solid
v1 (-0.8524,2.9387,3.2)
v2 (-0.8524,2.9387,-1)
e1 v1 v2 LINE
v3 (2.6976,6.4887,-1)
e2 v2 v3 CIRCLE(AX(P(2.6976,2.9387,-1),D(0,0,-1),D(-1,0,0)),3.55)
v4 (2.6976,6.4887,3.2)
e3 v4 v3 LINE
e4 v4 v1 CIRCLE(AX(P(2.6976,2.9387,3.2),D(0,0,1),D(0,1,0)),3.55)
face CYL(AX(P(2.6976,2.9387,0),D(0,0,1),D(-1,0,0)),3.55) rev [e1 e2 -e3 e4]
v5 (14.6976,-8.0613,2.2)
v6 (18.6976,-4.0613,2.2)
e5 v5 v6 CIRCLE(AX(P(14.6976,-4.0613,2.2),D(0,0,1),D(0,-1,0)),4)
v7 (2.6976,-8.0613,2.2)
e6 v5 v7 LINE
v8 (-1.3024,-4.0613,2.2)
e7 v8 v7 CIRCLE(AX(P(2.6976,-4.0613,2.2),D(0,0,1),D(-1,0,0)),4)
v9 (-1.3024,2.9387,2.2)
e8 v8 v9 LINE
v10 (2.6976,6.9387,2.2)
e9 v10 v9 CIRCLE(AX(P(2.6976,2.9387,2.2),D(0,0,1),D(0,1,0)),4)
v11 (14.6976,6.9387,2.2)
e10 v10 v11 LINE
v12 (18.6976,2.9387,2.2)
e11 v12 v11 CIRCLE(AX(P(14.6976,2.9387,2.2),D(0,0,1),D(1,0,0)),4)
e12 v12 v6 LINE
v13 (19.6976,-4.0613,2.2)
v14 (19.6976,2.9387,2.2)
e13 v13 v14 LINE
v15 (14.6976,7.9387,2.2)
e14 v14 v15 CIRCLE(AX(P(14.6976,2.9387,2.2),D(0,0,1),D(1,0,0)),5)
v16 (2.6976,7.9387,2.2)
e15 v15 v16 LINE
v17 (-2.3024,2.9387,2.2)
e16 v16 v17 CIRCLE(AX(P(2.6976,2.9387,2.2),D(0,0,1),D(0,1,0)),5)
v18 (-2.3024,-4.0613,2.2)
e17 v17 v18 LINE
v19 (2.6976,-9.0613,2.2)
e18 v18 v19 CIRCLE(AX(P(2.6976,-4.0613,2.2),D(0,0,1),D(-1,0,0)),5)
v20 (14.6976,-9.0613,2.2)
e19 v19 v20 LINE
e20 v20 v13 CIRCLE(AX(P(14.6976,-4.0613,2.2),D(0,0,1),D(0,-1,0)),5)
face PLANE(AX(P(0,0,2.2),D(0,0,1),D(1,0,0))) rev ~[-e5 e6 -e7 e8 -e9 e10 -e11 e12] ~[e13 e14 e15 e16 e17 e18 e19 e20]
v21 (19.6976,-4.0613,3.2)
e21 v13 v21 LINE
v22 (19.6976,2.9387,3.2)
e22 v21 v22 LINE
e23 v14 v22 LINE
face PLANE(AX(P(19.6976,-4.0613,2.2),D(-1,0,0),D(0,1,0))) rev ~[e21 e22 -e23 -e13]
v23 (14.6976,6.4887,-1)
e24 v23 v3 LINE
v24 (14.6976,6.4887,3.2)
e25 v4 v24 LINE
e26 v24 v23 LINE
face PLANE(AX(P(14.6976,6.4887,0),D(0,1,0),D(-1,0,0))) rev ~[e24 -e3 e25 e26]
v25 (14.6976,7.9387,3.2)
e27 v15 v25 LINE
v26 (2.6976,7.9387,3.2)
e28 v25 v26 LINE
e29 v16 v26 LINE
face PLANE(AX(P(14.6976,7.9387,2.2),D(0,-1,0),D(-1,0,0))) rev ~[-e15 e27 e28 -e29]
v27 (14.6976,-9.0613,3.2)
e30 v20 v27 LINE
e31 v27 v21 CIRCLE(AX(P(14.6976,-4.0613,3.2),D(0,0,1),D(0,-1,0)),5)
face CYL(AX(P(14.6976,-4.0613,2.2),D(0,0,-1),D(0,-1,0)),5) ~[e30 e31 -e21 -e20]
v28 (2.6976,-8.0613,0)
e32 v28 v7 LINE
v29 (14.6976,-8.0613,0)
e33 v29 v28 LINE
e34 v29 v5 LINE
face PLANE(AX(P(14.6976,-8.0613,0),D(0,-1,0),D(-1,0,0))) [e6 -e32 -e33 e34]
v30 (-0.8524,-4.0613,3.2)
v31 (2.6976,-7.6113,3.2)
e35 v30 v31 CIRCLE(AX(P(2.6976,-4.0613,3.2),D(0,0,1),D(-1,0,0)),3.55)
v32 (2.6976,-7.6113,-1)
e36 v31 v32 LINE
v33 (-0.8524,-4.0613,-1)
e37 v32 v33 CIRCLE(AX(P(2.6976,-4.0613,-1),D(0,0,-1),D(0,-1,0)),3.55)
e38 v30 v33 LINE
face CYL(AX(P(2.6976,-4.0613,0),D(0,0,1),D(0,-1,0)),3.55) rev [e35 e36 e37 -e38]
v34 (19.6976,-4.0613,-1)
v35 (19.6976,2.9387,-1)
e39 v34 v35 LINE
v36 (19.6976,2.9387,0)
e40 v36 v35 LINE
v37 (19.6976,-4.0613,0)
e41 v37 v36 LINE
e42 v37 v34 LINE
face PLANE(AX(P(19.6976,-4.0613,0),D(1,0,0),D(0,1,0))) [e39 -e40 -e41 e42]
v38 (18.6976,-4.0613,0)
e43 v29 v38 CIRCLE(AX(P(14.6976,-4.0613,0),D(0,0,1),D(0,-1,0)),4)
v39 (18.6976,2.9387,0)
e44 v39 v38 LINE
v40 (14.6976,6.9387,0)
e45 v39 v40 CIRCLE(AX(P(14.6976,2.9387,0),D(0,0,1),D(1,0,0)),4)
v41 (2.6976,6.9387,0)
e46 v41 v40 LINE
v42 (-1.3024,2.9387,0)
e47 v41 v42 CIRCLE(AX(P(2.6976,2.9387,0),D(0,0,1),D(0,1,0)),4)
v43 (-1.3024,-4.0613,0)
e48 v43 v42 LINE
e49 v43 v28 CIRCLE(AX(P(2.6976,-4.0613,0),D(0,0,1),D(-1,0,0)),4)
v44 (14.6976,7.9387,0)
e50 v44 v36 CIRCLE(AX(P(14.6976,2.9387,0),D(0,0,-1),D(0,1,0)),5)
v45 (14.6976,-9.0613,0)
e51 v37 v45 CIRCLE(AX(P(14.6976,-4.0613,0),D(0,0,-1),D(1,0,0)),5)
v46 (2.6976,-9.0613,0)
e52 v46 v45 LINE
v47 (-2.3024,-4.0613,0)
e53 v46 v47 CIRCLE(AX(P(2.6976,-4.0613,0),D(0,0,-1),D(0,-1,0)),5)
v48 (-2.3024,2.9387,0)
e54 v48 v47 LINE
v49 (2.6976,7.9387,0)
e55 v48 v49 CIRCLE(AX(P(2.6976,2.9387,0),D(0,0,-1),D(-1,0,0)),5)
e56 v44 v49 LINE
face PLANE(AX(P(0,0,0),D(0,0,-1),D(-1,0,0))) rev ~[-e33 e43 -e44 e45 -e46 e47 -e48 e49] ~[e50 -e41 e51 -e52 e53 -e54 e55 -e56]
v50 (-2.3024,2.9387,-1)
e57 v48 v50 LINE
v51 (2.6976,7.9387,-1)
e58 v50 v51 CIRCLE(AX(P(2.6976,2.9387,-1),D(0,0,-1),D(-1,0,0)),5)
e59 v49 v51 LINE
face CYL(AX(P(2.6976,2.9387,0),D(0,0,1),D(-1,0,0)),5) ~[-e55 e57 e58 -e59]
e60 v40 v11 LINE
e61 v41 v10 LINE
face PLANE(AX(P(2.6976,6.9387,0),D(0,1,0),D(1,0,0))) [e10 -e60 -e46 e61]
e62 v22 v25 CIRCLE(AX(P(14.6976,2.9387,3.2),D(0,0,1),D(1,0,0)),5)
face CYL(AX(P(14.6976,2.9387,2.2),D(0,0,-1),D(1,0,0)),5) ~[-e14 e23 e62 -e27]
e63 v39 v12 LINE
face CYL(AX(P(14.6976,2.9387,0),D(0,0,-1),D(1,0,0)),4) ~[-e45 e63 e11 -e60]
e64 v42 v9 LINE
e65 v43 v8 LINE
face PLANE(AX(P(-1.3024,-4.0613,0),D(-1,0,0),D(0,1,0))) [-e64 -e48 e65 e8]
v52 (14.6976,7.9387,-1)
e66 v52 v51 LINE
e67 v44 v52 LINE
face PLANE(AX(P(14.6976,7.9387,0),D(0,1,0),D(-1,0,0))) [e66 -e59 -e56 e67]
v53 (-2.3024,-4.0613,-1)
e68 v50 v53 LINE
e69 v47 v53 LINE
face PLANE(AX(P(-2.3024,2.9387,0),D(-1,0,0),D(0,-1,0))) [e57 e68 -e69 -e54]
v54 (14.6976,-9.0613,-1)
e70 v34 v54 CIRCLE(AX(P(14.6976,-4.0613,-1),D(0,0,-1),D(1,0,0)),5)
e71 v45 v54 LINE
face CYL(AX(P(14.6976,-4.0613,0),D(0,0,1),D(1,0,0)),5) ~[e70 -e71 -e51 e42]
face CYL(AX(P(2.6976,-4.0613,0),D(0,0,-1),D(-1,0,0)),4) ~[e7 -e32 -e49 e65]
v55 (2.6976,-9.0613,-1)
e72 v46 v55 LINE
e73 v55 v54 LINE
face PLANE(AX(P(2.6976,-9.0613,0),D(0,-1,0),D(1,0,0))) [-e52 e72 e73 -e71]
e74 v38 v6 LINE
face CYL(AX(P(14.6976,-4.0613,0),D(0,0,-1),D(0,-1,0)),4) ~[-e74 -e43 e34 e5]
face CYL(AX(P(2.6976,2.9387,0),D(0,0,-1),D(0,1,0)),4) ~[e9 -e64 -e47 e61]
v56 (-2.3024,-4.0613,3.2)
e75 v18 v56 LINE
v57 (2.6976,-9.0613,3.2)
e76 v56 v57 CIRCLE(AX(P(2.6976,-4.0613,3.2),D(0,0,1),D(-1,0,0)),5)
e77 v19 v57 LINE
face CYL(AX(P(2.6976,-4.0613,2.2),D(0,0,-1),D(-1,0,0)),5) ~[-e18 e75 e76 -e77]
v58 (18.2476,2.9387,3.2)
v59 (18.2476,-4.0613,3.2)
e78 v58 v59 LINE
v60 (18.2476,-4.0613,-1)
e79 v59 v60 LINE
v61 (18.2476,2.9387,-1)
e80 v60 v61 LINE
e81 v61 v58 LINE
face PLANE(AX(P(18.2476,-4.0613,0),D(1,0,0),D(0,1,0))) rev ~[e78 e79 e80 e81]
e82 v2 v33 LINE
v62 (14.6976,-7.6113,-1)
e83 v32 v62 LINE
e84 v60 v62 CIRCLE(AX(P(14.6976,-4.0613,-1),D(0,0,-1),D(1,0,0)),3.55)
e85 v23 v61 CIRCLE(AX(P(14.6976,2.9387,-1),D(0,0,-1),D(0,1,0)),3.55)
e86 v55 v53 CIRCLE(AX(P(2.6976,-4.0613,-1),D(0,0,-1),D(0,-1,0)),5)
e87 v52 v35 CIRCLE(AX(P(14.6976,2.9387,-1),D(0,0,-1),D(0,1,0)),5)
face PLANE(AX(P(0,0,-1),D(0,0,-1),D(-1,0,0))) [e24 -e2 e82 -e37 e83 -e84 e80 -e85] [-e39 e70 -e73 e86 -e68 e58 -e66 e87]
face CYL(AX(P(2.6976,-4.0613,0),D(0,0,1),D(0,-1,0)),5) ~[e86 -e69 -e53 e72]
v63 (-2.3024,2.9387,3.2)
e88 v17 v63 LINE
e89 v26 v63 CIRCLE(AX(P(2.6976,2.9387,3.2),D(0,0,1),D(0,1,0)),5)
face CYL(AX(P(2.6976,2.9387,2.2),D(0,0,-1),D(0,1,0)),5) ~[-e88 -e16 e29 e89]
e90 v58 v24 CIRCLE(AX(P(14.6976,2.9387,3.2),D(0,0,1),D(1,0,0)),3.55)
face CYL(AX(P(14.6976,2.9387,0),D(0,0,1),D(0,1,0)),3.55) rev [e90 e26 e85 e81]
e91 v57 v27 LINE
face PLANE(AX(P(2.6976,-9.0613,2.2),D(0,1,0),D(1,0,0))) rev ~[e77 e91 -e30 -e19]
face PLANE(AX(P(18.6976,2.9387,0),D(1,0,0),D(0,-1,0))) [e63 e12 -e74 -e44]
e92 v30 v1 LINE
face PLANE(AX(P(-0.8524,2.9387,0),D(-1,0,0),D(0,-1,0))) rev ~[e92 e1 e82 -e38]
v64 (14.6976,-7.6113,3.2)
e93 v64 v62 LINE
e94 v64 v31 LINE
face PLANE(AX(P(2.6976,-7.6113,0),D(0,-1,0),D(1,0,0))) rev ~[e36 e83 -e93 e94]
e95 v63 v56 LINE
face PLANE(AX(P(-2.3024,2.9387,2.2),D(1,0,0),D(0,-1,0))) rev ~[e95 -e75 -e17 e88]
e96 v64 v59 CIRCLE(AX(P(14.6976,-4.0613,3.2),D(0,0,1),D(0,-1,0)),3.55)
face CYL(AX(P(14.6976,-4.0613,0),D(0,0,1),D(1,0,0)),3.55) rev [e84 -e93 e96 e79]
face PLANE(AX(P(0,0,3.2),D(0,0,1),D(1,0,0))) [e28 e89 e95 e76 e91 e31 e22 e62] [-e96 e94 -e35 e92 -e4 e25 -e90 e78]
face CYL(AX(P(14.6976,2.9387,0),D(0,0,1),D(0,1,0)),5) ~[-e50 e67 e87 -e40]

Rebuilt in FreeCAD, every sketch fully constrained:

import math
import FreeCAD as App
import Part
import Sketcher
from FreeCAD import Vector

doc = App.newDocument("Part")
body = doc.addObject("PartDesign::Body", "Body")

# Sketch on XY plane
sketch1 = body.newObject("Sketcher::SketchObject", "Sketch")
sketch1.AttachmentSupport = (doc.getObject("XY_Plane"), [""])
sketch1.MapMode = "FlatFace"
sketch1.addGeometry([
    Part.LineSegment(Vector(14.7, 6.9, 0), Vector(2.7, 6.9, 0)),  # 0
    Part.ArcOfCircle(Part.Circle(Vector(2.7, 2.9, 0), Vector(0, 0, 1), 4), math.radians(90), math.radians(180)),  # 1
    Part.LineSegment(Vector(-1.3, 2.9, 0), Vector(-1.3, -4.1, 0)),  # 2
    Part.ArcOfCircle(Part.Circle(Vector(2.7, -4.1, 0), Vector(0, 0, 1), 4), math.radians(180), math.radians(270)),  # 3
    Part.LineSegment(Vector(2.7, -8.1, 0), Vector(14.7, -8.1, 0)),  # 4
    Part.ArcOfCircle(Part.Circle(Vector(14.7, -4.1, 0), Vector(0, 0, 1), 4), math.radians(-90), math.radians(0)),  # 5
    Part.LineSegment(Vector(18.7, -4.1, 0), Vector(18.7, 2.9, 0)),  # 6
    Part.ArcOfCircle(Part.Circle(Vector(14.7, 2.9, 0), Vector(0, 0, 1), 4), math.radians(0), math.radians(90)),  # 7
    Part.LineSegment(Vector(2.7, 6.5, 0), Vector(14.7, 6.5, 0)),  # 8
    Part.ArcOfCircle(Part.Circle(Vector(14.7, 2.9, 0), Vector(0, 0, 1), 3.5), math.radians(0), math.radians(90)),  # 9
    Part.LineSegment(Vector(18.2, 2.9, 0), Vector(18.2, -4.1, 0)),  # 10
    Part.ArcOfCircle(Part.Circle(Vector(14.7, -4.1, 0), Vector(0, 0, 1), 3.5), math.radians(-90), math.radians(0)),  # 11
    Part.LineSegment(Vector(14.7, -7.6, 0), Vector(2.7, -7.6, 0)),  # 12
    Part.ArcOfCircle(Part.Circle(Vector(2.7, -4.1, 0), Vector(0, 0, 1), 3.5), math.radians(180), math.radians(270)),  # 13
    Part.LineSegment(Vector(-0.9, -4.1, 0), Vector(-0.9, 2.9, 0)),  # 14
    Part.ArcOfCircle(Part.Circle(Vector(2.7, 2.9, 0), Vector(0, 0, 1), 3.5), math.radians(90), math.radians(180)),  # 15
], False)
sketch1.addConstraint([
    Sketcher.Constraint("Tangent", 0, 2, 1, 1),
    Sketcher.Constraint("Tangent", 1, 2, 2, 1),
    Sketcher.Constraint("Tangent", 2, 2, 3, 1),
    Sketcher.Constraint("Tangent", 3, 2, 4, 1),
    Sketcher.Constraint("Tangent", 4, 2, 5, 1),
    Sketcher.Constraint("Tangent", 5, 2, 6, 1),
    Sketcher.Constraint("Tangent", 6, 2, 7, 1),
    Sketcher.Constraint("Tangent", 7, 2, 0, 1),
    Sketcher.Constraint("Tangent", 8, 2, 9, 2),
    Sketcher.Constraint("Tangent", 9, 1, 10, 1),
    Sketcher.Constraint("Tangent", 10, 2, 11, 2),
    Sketcher.Constraint("Tangent", 11, 1, 12, 1),
    Sketcher.Constraint("Tangent", 12, 2, 13, 2),
    Sketcher.Constraint("Tangent", 13, 1, 14, 1),
    Sketcher.Constraint("Tangent", 14, 2, 15, 2),
    Sketcher.Constraint("Tangent", 15, 1, 8, 1),
    Sketcher.Constraint("Horizontal", 0),
    Sketcher.Constraint("Vertical", 2),
    Sketcher.Constraint("Horizontal", 4),
    Sketcher.Constraint("Vertical", 6),
    Sketcher.Constraint("Horizontal", 8),
    Sketcher.Constraint("Vertical", 10),
    Sketcher.Constraint("Horizontal", 12),
    Sketcher.Constraint("Vertical", 14),
    Sketcher.Constraint("Coincident", 9, 3, 7, 3),
    Sketcher.Constraint("Coincident", 11, 3, 5, 3),
    Sketcher.Constraint("Coincident", 13, 3, 3, 3),
    Sketcher.Constraint("Equal", 1, 3),
    Sketcher.Constraint("Equal", 3, 5),
    Sketcher.Constraint("Equal", 5, 7),
    Sketcher.Constraint("Equal", 13, 15),
    Sketcher.Constraint("Radius", 1, 4.0),
    Sketcher.Constraint("DistanceX", 0, 2, 0, 1, 12.0),
    Sketcher.Constraint("DistanceY", 2, 2, 2, 1, 7.0),
    Sketcher.Constraint("Radius", 9, 3.55),
    Sketcher.Constraint("DistanceX", -1, 1, 1, 3, 2.6976),
    Sketcher.Constraint("DistanceY", -1, 1, 1, 3, 2.9387),
])
pad1 = body.newObject("PartDesign::Pad", "Pad")
pad1.Profile = sketch1
pad1.Length = 2.2

# Sketch on XY plane
sketch2 = body.newObject("Sketcher::SketchObject", "Sketch001")
sketch2.AttachmentSupport = (doc.getObject("XY_Plane"), [""])
sketch2.MapMode = "FlatFace"
sketch2.AttachmentOffset = App.Placement(Vector(0, 0, 2.2), App.Rotation())
sketch2.addGeometry([
    Part.ArcOfCircle(Part.Circle(Vector(2.7, 2.9, 0), Vector(0, 0, 1), 5), math.radians(90), math.radians(180)),  # 0
    Part.LineSegment(Vector(-2.3, 2.9, 0), Vector(-2.3, -4.1, 0)),  # 1
    Part.ArcOfCircle(Part.Circle(Vector(2.7, -4.1, 0), Vector(0, 0, 1), 5), math.radians(180), math.radians(270)),  # 2
    Part.LineSegment(Vector(2.7, -9.1, 0), Vector(14.7, -9.1, 0)),  # 3
    Part.ArcOfCircle(Part.Circle(Vector(14.7, -4.1, 0), Vector(0, 0, 1), 5), math.radians(-90), math.radians(0)),  # 4
    Part.LineSegment(Vector(19.7, -4.1, 0), Vector(19.7, 2.9, 0)),  # 5
    Part.ArcOfCircle(Part.Circle(Vector(14.7, 2.9, 0), Vector(0, 0, 1), 5), math.radians(0), math.radians(90)),  # 6
    Part.LineSegment(Vector(14.7, 7.9, 0), Vector(2.7, 7.9, 0)),  # 7
    Part.ArcOfCircle(Part.Circle(Vector(14.7, 2.9, 0), Vector(0, 0, 1), 3.5), math.radians(0), math.radians(90)),  # 8
    Part.LineSegment(Vector(18.2, 2.9, 0), Vector(18.2, -4.1, 0)),  # 9
    Part.ArcOfCircle(Part.Circle(Vector(14.7, -4.1, 0), Vector(0, 0, 1), 3.5), math.radians(-90), math.radians(0)),  # 10
    Part.LineSegment(Vector(14.7, -7.6, 0), Vector(2.7, -7.6, 0)),  # 11
    Part.ArcOfCircle(Part.Circle(Vector(2.7, -4.1, 0), Vector(0, 0, 1), 3.5), math.radians(180), math.radians(270)),  # 12
    Part.LineSegment(Vector(-0.9, -4.1, 0), Vector(-0.9, 2.9, 0)),  # 13
    Part.ArcOfCircle(Part.Circle(Vector(2.7, 2.9, 0), Vector(0, 0, 1), 3.5), math.radians(90), math.radians(180)),  # 14
    Part.LineSegment(Vector(2.7, 6.5, 0), Vector(14.7, 6.5, 0)),  # 15
], False)
sketch2.addConstraint([
    Sketcher.Constraint("Tangent", 0, 2, 1, 1),
    Sketcher.Constraint("Tangent", 1, 2, 2, 1),
    Sketcher.Constraint("Tangent", 2, 2, 3, 1),
    Sketcher.Constraint("Tangent", 3, 2, 4, 1),
    Sketcher.Constraint("Tangent", 4, 2, 5, 1),
    Sketcher.Constraint("Tangent", 5, 2, 6, 1),
    Sketcher.Constraint("Tangent", 6, 2, 7, 1),
    Sketcher.Constraint("Tangent", 7, 2, 0, 1),
    Sketcher.Constraint("Tangent", 8, 1, 9, 1),
    Sketcher.Constraint("Tangent", 9, 2, 10, 2),
    Sketcher.Constraint("Tangent", 10, 1, 11, 1),
    Sketcher.Constraint("Tangent", 11, 2, 12, 2),
    Sketcher.Constraint("Tangent", 12, 1, 13, 1),
    Sketcher.Constraint("Tangent", 13, 2, 14, 2),
    Sketcher.Constraint("Tangent", 14, 1, 15, 1),
    Sketcher.Constraint("Tangent", 15, 2, 8, 2),
    Sketcher.Constraint("Vertical", 1),
    Sketcher.Constraint("Horizontal", 3),
    Sketcher.Constraint("Vertical", 5),
    Sketcher.Constraint("Horizontal", 7),
    Sketcher.Constraint("Vertical", 9),
    Sketcher.Constraint("Horizontal", 11),
    Sketcher.Constraint("Vertical", 13),
    Sketcher.Constraint("Horizontal", 15),
    Sketcher.Constraint("Coincident", 8, 3, 6, 3),
    Sketcher.Constraint("Coincident", 10, 3, 4, 3),
    Sketcher.Constraint("Coincident", 12, 3, 2, 3),
    Sketcher.Constraint("Equal", 0, 2),
    Sketcher.Constraint("Equal", 2, 4),
    Sketcher.Constraint("Equal", 4, 6),
    Sketcher.Constraint("Equal", 12, 14),
    Sketcher.Constraint("Radius", 0, 5.0),
    Sketcher.Constraint("DistanceX", 3, 1, 3, 2, 12.0),
    Sketcher.Constraint("DistanceY", 1, 2, 1, 1, 7.0),
    Sketcher.Constraint("Radius", 8, 3.55),
    Sketcher.Constraint("DistanceX", -1, 1, 0, 3, 2.6976),
    Sketcher.Constraint("DistanceY", -1, 1, 0, 3, 2.9387),
])
pad2 = body.newObject("PartDesign::Pad", "Pad001")
pad2.Profile = sketch2
pad2.Length = 1

# Sketch on XY plane
sketch3 = body.newObject("Sketcher::SketchObject", "Sketch002")
sketch3.AttachmentSupport = (doc.getObject("XY_Plane"), [""])
sketch3.MapMode = "FlatFace"
sketch3.addGeometry([
    Part.LineSegment(Vector(-2.3, -4.1, 0), Vector(-2.3, 2.9, 0)),  # 0
    Part.ArcOfCircle(Part.Circle(Vector(2.7, 2.9, 0), Vector(0, 0, 1), 5), math.radians(90), math.radians(180)),  # 1
    Part.LineSegment(Vector(2.7, 7.9, 0), Vector(14.7, 7.9, 0)),  # 2
    Part.ArcOfCircle(Part.Circle(Vector(14.7, 2.9, 0), Vector(0, 0, 1), 5), math.radians(0), math.radians(90)),  # 3
    Part.LineSegment(Vector(19.7, 2.9, 0), Vector(19.7, -4.1, 0)),  # 4
    Part.ArcOfCircle(Part.Circle(Vector(14.7, -4.1, 0), Vector(0, 0, 1), 5), math.radians(-90), math.radians(0)),  # 5
    Part.LineSegment(Vector(14.7, -9.1, 0), Vector(2.7, -9.1, 0)),  # 6
    Part.ArcOfCircle(Part.Circle(Vector(2.7, -4.1, 0), Vector(0, 0, 1), 5), math.radians(180), math.radians(270)),  # 7
    Part.ArcOfCircle(Part.Circle(Vector(14.7, 2.9, 0), Vector(0, 0, 1), 3.5), math.radians(0), math.radians(90)),  # 8
    Part.LineSegment(Vector(14.7, 6.5, 0), Vector(2.7, 6.5, 0)),  # 9
    Part.ArcOfCircle(Part.Circle(Vector(2.7, 2.9, 0), Vector(0, 0, 1), 3.5), math.radians(90), math.radians(180)),  # 10
    Part.LineSegment(Vector(-0.9, 2.9, 0), Vector(-0.9, -4.1, 0)),  # 11
    Part.ArcOfCircle(Part.Circle(Vector(2.7, -4.1, 0), Vector(0, 0, 1), 3.5), math.radians(180), math.radians(270)),  # 12
    Part.LineSegment(Vector(2.7, -7.6, 0), Vector(14.7, -7.6, 0)),  # 13
    Part.ArcOfCircle(Part.Circle(Vector(14.7, -4.1, 0), Vector(0, 0, 1), 3.5), math.radians(-90), math.radians(0)),  # 14
    Part.LineSegment(Vector(18.2, -4.1, 0), Vector(18.2, 2.9, 0)),  # 15
], False)
sketch3.addConstraint([
    Sketcher.Constraint("Tangent", 0, 2, 1, 2),
    Sketcher.Constraint("Tangent", 1, 1, 2, 1),
    Sketcher.Constraint("Tangent", 2, 2, 3, 2),
    Sketcher.Constraint("Tangent", 3, 1, 4, 1),
    Sketcher.Constraint("Tangent", 4, 2, 5, 2),
    Sketcher.Constraint("Tangent", 5, 1, 6, 1),
    Sketcher.Constraint("Tangent", 6, 2, 7, 2),
    Sketcher.Constraint("Tangent", 7, 1, 0, 1),
    Sketcher.Constraint("Tangent", 8, 2, 9, 1),
    Sketcher.Constraint("Tangent", 9, 2, 10, 1),
    Sketcher.Constraint("Tangent", 10, 2, 11, 1),
    Sketcher.Constraint("Tangent", 11, 2, 12, 1),
    Sketcher.Constraint("Tangent", 12, 2, 13, 1),
    Sketcher.Constraint("Tangent", 13, 2, 14, 1),
    Sketcher.Constraint("Tangent", 14, 2, 15, 1),
    Sketcher.Constraint("Tangent", 15, 2, 8, 1),
    Sketcher.Constraint("Vertical", 0),
    Sketcher.Constraint("Horizontal", 2),
    Sketcher.Constraint("Vertical", 4),
    Sketcher.Constraint("Horizontal", 6),
    Sketcher.Constraint("Horizontal", 9),
    Sketcher.Constraint("Vertical", 11),
    Sketcher.Constraint("Horizontal", 13),
    Sketcher.Constraint("Vertical", 15),
    Sketcher.Constraint("Coincident", 8, 3, 3, 3),
    Sketcher.Constraint("Coincident", 10, 3, 1, 3),
    Sketcher.Constraint("Coincident", 12, 3, 7, 3),
    Sketcher.Constraint("Equal", 1, 3),
    Sketcher.Constraint("Equal", 3, 5),
    Sketcher.Constraint("Equal", 5, 7),
    Sketcher.Constraint("Equal", 12, 14),
    Sketcher.Constraint("Radius", 1, 5.0),
    Sketcher.Constraint("DistanceX", 2, 1, 2, 2, 12.0),
    Sketcher.Constraint("DistanceY", 0, 1, 0, 2, 7.0),
    Sketcher.Constraint("Radius", 8, 3.55),
    Sketcher.Constraint("DistanceX", -1, 1, 1, 3, 2.6976),
    Sketcher.Constraint("DistanceY", -1, 1, 1, 3, 2.9387),
])
pad3 = body.newObject("PartDesign::Pad", "Pad002")
pad3.Profile = sketch3
pad3.Length = 1
pad3.Reversed = True

doc.recompute()
